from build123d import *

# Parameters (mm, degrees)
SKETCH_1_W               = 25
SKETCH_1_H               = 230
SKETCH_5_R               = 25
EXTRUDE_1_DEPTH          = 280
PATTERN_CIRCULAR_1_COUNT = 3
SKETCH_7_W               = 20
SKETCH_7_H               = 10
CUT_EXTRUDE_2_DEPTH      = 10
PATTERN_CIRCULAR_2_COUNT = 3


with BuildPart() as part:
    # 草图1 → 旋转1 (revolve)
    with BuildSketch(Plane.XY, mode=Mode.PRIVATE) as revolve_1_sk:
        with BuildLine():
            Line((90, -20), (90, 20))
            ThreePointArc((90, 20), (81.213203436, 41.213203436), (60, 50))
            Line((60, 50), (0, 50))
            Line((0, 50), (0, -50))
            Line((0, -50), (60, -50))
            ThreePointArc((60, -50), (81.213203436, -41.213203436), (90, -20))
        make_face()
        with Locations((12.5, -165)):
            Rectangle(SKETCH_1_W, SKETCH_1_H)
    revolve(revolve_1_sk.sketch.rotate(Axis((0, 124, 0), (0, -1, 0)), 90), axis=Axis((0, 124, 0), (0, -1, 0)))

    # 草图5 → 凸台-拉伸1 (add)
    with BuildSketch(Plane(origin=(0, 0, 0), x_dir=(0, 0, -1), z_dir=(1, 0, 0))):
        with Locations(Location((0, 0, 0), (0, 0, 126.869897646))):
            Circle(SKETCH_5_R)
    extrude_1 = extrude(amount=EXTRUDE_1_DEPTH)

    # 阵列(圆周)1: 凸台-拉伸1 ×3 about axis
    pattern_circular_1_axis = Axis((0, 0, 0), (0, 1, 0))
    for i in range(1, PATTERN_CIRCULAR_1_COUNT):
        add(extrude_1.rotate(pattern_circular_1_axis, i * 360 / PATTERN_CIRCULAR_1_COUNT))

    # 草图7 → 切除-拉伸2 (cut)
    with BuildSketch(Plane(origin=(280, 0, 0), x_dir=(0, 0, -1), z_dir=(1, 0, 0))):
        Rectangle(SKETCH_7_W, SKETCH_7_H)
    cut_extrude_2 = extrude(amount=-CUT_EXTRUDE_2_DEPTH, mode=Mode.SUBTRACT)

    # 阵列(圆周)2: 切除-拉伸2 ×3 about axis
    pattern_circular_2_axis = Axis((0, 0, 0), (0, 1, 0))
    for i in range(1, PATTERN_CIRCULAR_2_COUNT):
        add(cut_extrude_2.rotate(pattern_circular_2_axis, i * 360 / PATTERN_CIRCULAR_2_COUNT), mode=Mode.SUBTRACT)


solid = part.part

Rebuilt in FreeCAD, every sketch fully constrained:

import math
import FreeCAD as App
import Part
import Sketcher
from FreeCAD import Vector


def add_polygon(sketch, points):
    """Adds a closed chain of lines whose ends are joined by coincident constraints."""
    first, n = sketch.GeometryCount, len(points)
    for a, b in zip(points, points[1:] + points[:1]):
        sketch.addGeometry(Part.LineSegment(App.Vector(*a, 0), App.Vector(*b, 0)), False)
    for i in range(n):
        sketch.addConstraint(Sketcher.Constraint("Coincident", first + i, 2, first + (i + 1) % n, 1))

doc = App.newDocument("Part")
params = doc.addObject("Spreadsheet::Sheet", "Params")
for row, (alias, value) in enumerate([
    ("sketch1_radius", "30 mm"),
    ("sketch1_width", "60 mm"),
    ("sketch1_width2", "25 mm"),
    ("sketch1_height", "40 mm"),
    ("sketch1_height2", "330 mm"),
    ("revolution_angle", "360 deg"),
    ("sketch2_diameter", "50 mm"),
    ("pad1_length", "280 mm"),
    ("sketch3_width", "10 mm"),
    ("sketch3_height", "20 mm"),
    ("pocket1_length", "10 mm"),
], start=1):
    params.set(f"A{row}", alias)
    params.set(f"B{row}", "=" + value)
    params.setAlias(f"B{row}", alias)

body = doc.addObject("PartDesign::Body", "Body")

sketch1 = doc.addObject("Sketcher::SketchObject", "Sketch")
body.addObject(sketch1)
sketch1.AttachmentSupport = (doc.XY_Plane, [""])
sketch1.MapMode = "FlatFace"
sketch1.addGeometry(Part.LineSegment(Vector(90, -20, 0), Vector(90, 20, 0)), False)
sketch1.addGeometry(Part.ArcOfCircle(Part.Circle(Vector(60, 20, 0), Vector(0, 0, 1), 30), math.radians(0), math.radians(90)), False)
sketch1.addGeometry(Part.LineSegment(Vector(60, 50, 0), Vector(0, 50, 0)), False)
sketch1.addGeometry(Part.LineSegment(Vector(0, 50, 0), Vector(0, -280, 0)), False)
sketch1.addGeometry(Part.LineSegment(Vector(0, -280, 0), Vector(25, -280, 0)), False)
sketch1.addGeometry(Part.LineSegment(Vector(25, -280, 0), Vector(25, -50, 0)), False)
sketch1.addGeometry(Part.LineSegment(Vector(25, -50, 0), Vector(60, -50, 0)), False)
sketch1.addGeometry(Part.ArcOfCircle(Part.Circle(Vector(60, -20, 0), Vector(0, 0, 1), 30), math.radians(-90), math.radians(0)), False)
sketch1.addConstraint(Sketcher.Constraint("Tangent", 0, 2, 1, 1))
sketch1.addConstraint(Sketcher.Constraint("Tangent", 1, 2, 2, 1))
sketch1.addConstraint(Sketcher.Constraint("Coincident", 2, 2, 3, 1))
sketch1.addConstraint(Sketcher.Constraint("Coincident", 3, 2, 4, 1))
sketch1.addConstraint(Sketcher.Constraint("Coincident", 4, 2, 5, 1))
sketch1.addConstraint(Sketcher.Constraint("Coincident", 5, 2, 6, 1))
sketch1.addConstraint(Sketcher.Constraint("Tangent", 6, 2, 7, 1))
sketch1.addConstraint(Sketcher.Constraint("Tangent", 7, 2, 0, 1))
sketch1.addConstraint(Sketcher.Constraint("Vertical", 0))
sketch1.addConstraint(Sketcher.Constraint("Horizontal", 2))
sketch1.addConstraint(Sketcher.Constraint("Vertical", 3))
sketch1.addConstraint(Sketcher.Constraint("Horizontal", 4))
sketch1.addConstraint(Sketcher.Constraint("Vertical", 5))
sketch1.addConstraint(Sketcher.Constraint("Horizontal", 6))
sketch1.addConstraint(Sketcher.Constraint("Equal", 1, 7))
sketch1.addConstraint(Sketcher.Constraint("PointOnObject", 2, 2, -2))
sketch1.addConstraint(Sketcher.Constraint("Radius", 1, 30.0))
sketch1.addConstraint(Sketcher.Constraint("DistanceX", 2, 2, 2, 1, 60.0))
sketch1.addConstraint(Sketcher.Constraint("DistanceX", 4, 1, 4, 2, 25.0))
sketch1.addConstraint(Sketcher.Constraint("DistanceY", 0, 1, 0, 2, 40.0))
sketch1.addConstraint(Sketcher.Constraint("DistanceY", 3, 2, 3, 1, 330.0))
sketch1.addConstraint(Sketcher.Constraint("DistanceY", -1, 1, 1, 3, 20.0))
sketch1.setExpression("Constraints[16]", "Params.sketch1_radius")
sketch1.setExpression("Constraints[17]", "Params.sketch1_width")
sketch1.setExpression("Constraints[18]", "Params.sketch1_width2")
sketch1.setExpression("Constraints[19]", "Params.sketch1_height")
sketch1.setExpression("Constraints[20]", "Params.sketch1_height2")
revolution = doc.addObject("PartDesign::Revolution", "Revolution")
body.addObject(revolution)
revolution.Profile = sketch1
revolution.ReferenceAxis = (sketch1, ["V_Axis"])
revolution.setExpression("Angle", "Params.revolution_angle")

sketch2 = doc.addObject("Sketcher::SketchObject", "Sketch001")
body.addObject(sketch2)
sketch2.AttachmentSupport = (doc.YZ_Plane, [""])
sketch2.MapMode = "FlatFace"
sketch2.addGeometry(Part.Circle(Vector(0, 0, 0), Vector(0, 0, 1), 25), False)
sketch2.addConstraint(Sketcher.Constraint("Coincident", 0, 3, -1, 1))
sketch2.addConstraint(Sketcher.Constraint("Diameter", 0, 50.0))
sketch2.setExpression("Constraints[1]", "Params.sketch2_diameter")
pad1 = doc.addObject("PartDesign::Pad", "Pad")
body.addObject(pad1)
pad1.Profile = sketch2
pad1.setExpression("Length", "Params.pad1_length")
doc.recompute()

polarpattern = doc.addObject("PartDesign::PolarPattern", "PolarPattern")
body.addObject(polarpattern)
polarpattern.Originals = [pad1]
polarpattern.Axis = (doc.Y_Axis, [""])
polarpattern.Angle = 360
polarpattern.Occurrences = 3
body.Tip = polarpattern

sketch3 = doc.addObject("Sketcher::SketchObject", "Sketch002")
body.addObject(sketch3)
sketch3.AttachmentSupport = (doc.YZ_Plane, [""])
sketch3.MapMode = "FlatFace"
sketch3.AttachmentOffset = App.Placement(Vector(0, 0, 280), App.Rotation())
add_polygon(sketch3, [(5, 10), (-5, 10), (-5, -10), (5, -10)])
sketch3.addConstraint(Sketcher.Constraint("Horizontal", 0))
sketch3.addConstraint(Sketcher.Constraint("Vertical", 1))
sketch3.addConstraint(Sketcher.Constraint("Horizontal", 2))
sketch3.addConstraint(Sketcher.Constraint("Vertical", 3))
sketch3.addConstraint(Sketcher.Constraint("Symmetric", 0, 2, 2, 2, -1, 1))
sketch3.addConstraint(Sketcher.Constraint("DistanceX", 0, 2, 0, 1, 10.0))
sketch3.addConstraint(Sketcher.Constraint("DistanceY", 1, 2, 1, 1, 20.0))
sketch3.setExpression("Constraints[9]", "Params.sketch3_width")
sketch3.setExpression("Constraints[10]", "Params.sketch3_height")
pocket1 = doc.addObject("PartDesign::Pocket", "Pocket")
body.addObject(pocket1)
pocket1.Profile = sketch3
pocket1.setExpression("Length", "Params.pocket1_length")
doc.recompute()

polarpattern2 = doc.addObject("PartDesign::PolarPattern", "PolarPattern001")
body.addObject(polarpattern2)
polarpattern2.Originals = [pocket1]
polarpattern2.Axis = (doc.Y_Axis, [""])
polarpattern2.Angle = 360
polarpattern2.Occurrences = 3
body.Tip = polarpattern2

doc.recompute()
